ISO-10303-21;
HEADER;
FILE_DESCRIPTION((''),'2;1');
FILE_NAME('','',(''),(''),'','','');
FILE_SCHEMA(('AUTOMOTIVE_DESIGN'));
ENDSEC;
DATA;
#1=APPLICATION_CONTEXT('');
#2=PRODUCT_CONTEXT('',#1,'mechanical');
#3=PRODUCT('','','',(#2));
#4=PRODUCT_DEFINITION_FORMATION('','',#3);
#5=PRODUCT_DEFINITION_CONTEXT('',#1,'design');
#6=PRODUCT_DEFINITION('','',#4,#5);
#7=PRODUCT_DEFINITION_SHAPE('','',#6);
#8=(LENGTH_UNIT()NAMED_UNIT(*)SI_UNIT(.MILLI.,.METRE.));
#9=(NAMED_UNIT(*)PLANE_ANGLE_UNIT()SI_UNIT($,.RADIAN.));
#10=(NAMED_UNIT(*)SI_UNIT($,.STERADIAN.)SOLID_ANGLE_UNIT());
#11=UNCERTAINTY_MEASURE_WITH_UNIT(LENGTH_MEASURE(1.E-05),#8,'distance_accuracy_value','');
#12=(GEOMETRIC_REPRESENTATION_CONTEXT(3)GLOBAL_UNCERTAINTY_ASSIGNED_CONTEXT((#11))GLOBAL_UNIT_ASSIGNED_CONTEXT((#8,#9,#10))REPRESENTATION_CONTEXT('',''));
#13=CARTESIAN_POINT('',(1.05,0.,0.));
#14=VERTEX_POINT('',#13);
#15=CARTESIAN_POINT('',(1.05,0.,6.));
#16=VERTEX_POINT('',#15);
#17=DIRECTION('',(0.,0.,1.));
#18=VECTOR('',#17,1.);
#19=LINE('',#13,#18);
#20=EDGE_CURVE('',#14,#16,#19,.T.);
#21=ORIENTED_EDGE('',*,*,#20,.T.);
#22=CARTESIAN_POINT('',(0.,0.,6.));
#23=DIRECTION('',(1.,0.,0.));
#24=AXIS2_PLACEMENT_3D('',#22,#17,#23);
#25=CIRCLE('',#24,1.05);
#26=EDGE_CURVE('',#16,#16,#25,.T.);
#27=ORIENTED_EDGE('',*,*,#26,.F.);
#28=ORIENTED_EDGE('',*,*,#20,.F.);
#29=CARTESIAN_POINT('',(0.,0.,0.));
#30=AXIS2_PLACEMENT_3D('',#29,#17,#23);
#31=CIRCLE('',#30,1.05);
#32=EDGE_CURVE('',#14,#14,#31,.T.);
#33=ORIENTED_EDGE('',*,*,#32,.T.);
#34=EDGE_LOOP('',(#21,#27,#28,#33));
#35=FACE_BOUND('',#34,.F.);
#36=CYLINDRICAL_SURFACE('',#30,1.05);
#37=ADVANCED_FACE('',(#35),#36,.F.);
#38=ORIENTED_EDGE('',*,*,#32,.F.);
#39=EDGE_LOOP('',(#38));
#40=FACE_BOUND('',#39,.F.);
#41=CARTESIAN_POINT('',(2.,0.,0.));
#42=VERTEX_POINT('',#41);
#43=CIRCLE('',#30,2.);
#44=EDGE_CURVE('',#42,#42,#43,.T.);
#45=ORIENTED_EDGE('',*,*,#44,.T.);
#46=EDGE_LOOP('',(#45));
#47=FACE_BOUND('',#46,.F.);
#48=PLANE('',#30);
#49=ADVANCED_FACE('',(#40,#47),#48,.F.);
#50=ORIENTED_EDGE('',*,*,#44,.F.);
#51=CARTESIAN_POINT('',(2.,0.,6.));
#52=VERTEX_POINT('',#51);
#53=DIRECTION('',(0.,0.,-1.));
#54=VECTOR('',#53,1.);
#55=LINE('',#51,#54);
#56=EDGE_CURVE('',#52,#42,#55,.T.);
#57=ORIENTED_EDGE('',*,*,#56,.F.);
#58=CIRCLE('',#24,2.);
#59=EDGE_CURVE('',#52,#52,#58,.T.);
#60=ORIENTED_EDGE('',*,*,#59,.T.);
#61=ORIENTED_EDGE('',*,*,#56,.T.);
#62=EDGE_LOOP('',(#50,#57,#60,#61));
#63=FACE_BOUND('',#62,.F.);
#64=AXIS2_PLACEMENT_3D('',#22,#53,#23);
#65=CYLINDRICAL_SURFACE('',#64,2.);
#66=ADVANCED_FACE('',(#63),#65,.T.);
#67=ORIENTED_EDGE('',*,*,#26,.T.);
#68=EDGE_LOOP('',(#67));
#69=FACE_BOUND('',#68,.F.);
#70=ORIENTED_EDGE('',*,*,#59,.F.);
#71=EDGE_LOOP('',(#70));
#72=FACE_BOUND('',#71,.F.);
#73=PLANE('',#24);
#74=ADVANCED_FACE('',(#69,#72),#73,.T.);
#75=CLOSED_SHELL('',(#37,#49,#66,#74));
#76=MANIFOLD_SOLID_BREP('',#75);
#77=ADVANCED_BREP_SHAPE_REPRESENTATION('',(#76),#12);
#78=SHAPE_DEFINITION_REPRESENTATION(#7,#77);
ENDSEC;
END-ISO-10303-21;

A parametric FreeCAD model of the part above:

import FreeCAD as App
import Part
import Sketcher
Q = App.Units.Quantity

doc = App.newDocument("Part")
body = doc.addObject("PartDesign::Body", "Body")

# Sketch on XZ plane
sketch1 = body.newObject("Sketcher::SketchObject", "Sketch")
sketch1.AttachmentSupport = (doc.getObject("XZ_Plane"), [""])
sketch1.MapMode = "FlatFace"
sketch1.addGeometry(Part.LineSegment(App.Vector(2, 0, 0), App.Vector(1.1, 0, 0)), False)
sketch1.addGeometry(Part.LineSegment(App.Vector(1.1, 0, 0), App.Vector(1.1, 6, 0)), False)
sketch1.addGeometry(Part.LineSegment(App.Vector(1.1, 6, 0), App.Vector(2, 6, 0)), False)
sketch1.addGeometry(Part.LineSegment(App.Vector(2, 6, 0), App.Vector(2, 0, 0)), False)
sketch1.addConstraint(Sketcher.Constraint("Coincident", 0, 2, 1, 1))
sketch1.addConstraint(Sketcher.Constraint("Coincident", 1, 2, 2, 1))
sketch1.addConstraint(Sketcher.Constraint("Coincident", 2, 2, 3, 1))
sketch1.addConstraint(Sketcher.Constraint("Coincident", 3, 2, 0, 1))
sketch1.addConstraint(Sketcher.Constraint("Horizontal", 0))
sketch1.addConstraint(Sketcher.Constraint("Vertical", 1))
sketch1.addConstraint(Sketcher.Constraint("Horizontal", 2))
sketch1.addConstraint(Sketcher.Constraint("Vertical", 3))
sketch1.addConstraint(Sketcher.Constraint("PointOnObject", 0, 2, -1))
sketch1.addConstraint(Sketcher.Constraint("DistanceY", 1, 1, 1, 2, Q("6 mm")))
sketch1.addConstraint(Sketcher.Constraint("DistanceX", -1, 1, 2, 2, Q("2 mm")))
sketch1.addConstraint(Sketcher.Constraint("DistanceX", 0, 2, 0, 1, Q("0.95 mm")))
revolution = body.newObject("PartDesign::Revolution", "Revolution")
revolution.Profile = sketch1
revolution.ReferenceAxis = (sketch1, ["V_Axis"])
revolution.Angle = 360

doc.recompute()
